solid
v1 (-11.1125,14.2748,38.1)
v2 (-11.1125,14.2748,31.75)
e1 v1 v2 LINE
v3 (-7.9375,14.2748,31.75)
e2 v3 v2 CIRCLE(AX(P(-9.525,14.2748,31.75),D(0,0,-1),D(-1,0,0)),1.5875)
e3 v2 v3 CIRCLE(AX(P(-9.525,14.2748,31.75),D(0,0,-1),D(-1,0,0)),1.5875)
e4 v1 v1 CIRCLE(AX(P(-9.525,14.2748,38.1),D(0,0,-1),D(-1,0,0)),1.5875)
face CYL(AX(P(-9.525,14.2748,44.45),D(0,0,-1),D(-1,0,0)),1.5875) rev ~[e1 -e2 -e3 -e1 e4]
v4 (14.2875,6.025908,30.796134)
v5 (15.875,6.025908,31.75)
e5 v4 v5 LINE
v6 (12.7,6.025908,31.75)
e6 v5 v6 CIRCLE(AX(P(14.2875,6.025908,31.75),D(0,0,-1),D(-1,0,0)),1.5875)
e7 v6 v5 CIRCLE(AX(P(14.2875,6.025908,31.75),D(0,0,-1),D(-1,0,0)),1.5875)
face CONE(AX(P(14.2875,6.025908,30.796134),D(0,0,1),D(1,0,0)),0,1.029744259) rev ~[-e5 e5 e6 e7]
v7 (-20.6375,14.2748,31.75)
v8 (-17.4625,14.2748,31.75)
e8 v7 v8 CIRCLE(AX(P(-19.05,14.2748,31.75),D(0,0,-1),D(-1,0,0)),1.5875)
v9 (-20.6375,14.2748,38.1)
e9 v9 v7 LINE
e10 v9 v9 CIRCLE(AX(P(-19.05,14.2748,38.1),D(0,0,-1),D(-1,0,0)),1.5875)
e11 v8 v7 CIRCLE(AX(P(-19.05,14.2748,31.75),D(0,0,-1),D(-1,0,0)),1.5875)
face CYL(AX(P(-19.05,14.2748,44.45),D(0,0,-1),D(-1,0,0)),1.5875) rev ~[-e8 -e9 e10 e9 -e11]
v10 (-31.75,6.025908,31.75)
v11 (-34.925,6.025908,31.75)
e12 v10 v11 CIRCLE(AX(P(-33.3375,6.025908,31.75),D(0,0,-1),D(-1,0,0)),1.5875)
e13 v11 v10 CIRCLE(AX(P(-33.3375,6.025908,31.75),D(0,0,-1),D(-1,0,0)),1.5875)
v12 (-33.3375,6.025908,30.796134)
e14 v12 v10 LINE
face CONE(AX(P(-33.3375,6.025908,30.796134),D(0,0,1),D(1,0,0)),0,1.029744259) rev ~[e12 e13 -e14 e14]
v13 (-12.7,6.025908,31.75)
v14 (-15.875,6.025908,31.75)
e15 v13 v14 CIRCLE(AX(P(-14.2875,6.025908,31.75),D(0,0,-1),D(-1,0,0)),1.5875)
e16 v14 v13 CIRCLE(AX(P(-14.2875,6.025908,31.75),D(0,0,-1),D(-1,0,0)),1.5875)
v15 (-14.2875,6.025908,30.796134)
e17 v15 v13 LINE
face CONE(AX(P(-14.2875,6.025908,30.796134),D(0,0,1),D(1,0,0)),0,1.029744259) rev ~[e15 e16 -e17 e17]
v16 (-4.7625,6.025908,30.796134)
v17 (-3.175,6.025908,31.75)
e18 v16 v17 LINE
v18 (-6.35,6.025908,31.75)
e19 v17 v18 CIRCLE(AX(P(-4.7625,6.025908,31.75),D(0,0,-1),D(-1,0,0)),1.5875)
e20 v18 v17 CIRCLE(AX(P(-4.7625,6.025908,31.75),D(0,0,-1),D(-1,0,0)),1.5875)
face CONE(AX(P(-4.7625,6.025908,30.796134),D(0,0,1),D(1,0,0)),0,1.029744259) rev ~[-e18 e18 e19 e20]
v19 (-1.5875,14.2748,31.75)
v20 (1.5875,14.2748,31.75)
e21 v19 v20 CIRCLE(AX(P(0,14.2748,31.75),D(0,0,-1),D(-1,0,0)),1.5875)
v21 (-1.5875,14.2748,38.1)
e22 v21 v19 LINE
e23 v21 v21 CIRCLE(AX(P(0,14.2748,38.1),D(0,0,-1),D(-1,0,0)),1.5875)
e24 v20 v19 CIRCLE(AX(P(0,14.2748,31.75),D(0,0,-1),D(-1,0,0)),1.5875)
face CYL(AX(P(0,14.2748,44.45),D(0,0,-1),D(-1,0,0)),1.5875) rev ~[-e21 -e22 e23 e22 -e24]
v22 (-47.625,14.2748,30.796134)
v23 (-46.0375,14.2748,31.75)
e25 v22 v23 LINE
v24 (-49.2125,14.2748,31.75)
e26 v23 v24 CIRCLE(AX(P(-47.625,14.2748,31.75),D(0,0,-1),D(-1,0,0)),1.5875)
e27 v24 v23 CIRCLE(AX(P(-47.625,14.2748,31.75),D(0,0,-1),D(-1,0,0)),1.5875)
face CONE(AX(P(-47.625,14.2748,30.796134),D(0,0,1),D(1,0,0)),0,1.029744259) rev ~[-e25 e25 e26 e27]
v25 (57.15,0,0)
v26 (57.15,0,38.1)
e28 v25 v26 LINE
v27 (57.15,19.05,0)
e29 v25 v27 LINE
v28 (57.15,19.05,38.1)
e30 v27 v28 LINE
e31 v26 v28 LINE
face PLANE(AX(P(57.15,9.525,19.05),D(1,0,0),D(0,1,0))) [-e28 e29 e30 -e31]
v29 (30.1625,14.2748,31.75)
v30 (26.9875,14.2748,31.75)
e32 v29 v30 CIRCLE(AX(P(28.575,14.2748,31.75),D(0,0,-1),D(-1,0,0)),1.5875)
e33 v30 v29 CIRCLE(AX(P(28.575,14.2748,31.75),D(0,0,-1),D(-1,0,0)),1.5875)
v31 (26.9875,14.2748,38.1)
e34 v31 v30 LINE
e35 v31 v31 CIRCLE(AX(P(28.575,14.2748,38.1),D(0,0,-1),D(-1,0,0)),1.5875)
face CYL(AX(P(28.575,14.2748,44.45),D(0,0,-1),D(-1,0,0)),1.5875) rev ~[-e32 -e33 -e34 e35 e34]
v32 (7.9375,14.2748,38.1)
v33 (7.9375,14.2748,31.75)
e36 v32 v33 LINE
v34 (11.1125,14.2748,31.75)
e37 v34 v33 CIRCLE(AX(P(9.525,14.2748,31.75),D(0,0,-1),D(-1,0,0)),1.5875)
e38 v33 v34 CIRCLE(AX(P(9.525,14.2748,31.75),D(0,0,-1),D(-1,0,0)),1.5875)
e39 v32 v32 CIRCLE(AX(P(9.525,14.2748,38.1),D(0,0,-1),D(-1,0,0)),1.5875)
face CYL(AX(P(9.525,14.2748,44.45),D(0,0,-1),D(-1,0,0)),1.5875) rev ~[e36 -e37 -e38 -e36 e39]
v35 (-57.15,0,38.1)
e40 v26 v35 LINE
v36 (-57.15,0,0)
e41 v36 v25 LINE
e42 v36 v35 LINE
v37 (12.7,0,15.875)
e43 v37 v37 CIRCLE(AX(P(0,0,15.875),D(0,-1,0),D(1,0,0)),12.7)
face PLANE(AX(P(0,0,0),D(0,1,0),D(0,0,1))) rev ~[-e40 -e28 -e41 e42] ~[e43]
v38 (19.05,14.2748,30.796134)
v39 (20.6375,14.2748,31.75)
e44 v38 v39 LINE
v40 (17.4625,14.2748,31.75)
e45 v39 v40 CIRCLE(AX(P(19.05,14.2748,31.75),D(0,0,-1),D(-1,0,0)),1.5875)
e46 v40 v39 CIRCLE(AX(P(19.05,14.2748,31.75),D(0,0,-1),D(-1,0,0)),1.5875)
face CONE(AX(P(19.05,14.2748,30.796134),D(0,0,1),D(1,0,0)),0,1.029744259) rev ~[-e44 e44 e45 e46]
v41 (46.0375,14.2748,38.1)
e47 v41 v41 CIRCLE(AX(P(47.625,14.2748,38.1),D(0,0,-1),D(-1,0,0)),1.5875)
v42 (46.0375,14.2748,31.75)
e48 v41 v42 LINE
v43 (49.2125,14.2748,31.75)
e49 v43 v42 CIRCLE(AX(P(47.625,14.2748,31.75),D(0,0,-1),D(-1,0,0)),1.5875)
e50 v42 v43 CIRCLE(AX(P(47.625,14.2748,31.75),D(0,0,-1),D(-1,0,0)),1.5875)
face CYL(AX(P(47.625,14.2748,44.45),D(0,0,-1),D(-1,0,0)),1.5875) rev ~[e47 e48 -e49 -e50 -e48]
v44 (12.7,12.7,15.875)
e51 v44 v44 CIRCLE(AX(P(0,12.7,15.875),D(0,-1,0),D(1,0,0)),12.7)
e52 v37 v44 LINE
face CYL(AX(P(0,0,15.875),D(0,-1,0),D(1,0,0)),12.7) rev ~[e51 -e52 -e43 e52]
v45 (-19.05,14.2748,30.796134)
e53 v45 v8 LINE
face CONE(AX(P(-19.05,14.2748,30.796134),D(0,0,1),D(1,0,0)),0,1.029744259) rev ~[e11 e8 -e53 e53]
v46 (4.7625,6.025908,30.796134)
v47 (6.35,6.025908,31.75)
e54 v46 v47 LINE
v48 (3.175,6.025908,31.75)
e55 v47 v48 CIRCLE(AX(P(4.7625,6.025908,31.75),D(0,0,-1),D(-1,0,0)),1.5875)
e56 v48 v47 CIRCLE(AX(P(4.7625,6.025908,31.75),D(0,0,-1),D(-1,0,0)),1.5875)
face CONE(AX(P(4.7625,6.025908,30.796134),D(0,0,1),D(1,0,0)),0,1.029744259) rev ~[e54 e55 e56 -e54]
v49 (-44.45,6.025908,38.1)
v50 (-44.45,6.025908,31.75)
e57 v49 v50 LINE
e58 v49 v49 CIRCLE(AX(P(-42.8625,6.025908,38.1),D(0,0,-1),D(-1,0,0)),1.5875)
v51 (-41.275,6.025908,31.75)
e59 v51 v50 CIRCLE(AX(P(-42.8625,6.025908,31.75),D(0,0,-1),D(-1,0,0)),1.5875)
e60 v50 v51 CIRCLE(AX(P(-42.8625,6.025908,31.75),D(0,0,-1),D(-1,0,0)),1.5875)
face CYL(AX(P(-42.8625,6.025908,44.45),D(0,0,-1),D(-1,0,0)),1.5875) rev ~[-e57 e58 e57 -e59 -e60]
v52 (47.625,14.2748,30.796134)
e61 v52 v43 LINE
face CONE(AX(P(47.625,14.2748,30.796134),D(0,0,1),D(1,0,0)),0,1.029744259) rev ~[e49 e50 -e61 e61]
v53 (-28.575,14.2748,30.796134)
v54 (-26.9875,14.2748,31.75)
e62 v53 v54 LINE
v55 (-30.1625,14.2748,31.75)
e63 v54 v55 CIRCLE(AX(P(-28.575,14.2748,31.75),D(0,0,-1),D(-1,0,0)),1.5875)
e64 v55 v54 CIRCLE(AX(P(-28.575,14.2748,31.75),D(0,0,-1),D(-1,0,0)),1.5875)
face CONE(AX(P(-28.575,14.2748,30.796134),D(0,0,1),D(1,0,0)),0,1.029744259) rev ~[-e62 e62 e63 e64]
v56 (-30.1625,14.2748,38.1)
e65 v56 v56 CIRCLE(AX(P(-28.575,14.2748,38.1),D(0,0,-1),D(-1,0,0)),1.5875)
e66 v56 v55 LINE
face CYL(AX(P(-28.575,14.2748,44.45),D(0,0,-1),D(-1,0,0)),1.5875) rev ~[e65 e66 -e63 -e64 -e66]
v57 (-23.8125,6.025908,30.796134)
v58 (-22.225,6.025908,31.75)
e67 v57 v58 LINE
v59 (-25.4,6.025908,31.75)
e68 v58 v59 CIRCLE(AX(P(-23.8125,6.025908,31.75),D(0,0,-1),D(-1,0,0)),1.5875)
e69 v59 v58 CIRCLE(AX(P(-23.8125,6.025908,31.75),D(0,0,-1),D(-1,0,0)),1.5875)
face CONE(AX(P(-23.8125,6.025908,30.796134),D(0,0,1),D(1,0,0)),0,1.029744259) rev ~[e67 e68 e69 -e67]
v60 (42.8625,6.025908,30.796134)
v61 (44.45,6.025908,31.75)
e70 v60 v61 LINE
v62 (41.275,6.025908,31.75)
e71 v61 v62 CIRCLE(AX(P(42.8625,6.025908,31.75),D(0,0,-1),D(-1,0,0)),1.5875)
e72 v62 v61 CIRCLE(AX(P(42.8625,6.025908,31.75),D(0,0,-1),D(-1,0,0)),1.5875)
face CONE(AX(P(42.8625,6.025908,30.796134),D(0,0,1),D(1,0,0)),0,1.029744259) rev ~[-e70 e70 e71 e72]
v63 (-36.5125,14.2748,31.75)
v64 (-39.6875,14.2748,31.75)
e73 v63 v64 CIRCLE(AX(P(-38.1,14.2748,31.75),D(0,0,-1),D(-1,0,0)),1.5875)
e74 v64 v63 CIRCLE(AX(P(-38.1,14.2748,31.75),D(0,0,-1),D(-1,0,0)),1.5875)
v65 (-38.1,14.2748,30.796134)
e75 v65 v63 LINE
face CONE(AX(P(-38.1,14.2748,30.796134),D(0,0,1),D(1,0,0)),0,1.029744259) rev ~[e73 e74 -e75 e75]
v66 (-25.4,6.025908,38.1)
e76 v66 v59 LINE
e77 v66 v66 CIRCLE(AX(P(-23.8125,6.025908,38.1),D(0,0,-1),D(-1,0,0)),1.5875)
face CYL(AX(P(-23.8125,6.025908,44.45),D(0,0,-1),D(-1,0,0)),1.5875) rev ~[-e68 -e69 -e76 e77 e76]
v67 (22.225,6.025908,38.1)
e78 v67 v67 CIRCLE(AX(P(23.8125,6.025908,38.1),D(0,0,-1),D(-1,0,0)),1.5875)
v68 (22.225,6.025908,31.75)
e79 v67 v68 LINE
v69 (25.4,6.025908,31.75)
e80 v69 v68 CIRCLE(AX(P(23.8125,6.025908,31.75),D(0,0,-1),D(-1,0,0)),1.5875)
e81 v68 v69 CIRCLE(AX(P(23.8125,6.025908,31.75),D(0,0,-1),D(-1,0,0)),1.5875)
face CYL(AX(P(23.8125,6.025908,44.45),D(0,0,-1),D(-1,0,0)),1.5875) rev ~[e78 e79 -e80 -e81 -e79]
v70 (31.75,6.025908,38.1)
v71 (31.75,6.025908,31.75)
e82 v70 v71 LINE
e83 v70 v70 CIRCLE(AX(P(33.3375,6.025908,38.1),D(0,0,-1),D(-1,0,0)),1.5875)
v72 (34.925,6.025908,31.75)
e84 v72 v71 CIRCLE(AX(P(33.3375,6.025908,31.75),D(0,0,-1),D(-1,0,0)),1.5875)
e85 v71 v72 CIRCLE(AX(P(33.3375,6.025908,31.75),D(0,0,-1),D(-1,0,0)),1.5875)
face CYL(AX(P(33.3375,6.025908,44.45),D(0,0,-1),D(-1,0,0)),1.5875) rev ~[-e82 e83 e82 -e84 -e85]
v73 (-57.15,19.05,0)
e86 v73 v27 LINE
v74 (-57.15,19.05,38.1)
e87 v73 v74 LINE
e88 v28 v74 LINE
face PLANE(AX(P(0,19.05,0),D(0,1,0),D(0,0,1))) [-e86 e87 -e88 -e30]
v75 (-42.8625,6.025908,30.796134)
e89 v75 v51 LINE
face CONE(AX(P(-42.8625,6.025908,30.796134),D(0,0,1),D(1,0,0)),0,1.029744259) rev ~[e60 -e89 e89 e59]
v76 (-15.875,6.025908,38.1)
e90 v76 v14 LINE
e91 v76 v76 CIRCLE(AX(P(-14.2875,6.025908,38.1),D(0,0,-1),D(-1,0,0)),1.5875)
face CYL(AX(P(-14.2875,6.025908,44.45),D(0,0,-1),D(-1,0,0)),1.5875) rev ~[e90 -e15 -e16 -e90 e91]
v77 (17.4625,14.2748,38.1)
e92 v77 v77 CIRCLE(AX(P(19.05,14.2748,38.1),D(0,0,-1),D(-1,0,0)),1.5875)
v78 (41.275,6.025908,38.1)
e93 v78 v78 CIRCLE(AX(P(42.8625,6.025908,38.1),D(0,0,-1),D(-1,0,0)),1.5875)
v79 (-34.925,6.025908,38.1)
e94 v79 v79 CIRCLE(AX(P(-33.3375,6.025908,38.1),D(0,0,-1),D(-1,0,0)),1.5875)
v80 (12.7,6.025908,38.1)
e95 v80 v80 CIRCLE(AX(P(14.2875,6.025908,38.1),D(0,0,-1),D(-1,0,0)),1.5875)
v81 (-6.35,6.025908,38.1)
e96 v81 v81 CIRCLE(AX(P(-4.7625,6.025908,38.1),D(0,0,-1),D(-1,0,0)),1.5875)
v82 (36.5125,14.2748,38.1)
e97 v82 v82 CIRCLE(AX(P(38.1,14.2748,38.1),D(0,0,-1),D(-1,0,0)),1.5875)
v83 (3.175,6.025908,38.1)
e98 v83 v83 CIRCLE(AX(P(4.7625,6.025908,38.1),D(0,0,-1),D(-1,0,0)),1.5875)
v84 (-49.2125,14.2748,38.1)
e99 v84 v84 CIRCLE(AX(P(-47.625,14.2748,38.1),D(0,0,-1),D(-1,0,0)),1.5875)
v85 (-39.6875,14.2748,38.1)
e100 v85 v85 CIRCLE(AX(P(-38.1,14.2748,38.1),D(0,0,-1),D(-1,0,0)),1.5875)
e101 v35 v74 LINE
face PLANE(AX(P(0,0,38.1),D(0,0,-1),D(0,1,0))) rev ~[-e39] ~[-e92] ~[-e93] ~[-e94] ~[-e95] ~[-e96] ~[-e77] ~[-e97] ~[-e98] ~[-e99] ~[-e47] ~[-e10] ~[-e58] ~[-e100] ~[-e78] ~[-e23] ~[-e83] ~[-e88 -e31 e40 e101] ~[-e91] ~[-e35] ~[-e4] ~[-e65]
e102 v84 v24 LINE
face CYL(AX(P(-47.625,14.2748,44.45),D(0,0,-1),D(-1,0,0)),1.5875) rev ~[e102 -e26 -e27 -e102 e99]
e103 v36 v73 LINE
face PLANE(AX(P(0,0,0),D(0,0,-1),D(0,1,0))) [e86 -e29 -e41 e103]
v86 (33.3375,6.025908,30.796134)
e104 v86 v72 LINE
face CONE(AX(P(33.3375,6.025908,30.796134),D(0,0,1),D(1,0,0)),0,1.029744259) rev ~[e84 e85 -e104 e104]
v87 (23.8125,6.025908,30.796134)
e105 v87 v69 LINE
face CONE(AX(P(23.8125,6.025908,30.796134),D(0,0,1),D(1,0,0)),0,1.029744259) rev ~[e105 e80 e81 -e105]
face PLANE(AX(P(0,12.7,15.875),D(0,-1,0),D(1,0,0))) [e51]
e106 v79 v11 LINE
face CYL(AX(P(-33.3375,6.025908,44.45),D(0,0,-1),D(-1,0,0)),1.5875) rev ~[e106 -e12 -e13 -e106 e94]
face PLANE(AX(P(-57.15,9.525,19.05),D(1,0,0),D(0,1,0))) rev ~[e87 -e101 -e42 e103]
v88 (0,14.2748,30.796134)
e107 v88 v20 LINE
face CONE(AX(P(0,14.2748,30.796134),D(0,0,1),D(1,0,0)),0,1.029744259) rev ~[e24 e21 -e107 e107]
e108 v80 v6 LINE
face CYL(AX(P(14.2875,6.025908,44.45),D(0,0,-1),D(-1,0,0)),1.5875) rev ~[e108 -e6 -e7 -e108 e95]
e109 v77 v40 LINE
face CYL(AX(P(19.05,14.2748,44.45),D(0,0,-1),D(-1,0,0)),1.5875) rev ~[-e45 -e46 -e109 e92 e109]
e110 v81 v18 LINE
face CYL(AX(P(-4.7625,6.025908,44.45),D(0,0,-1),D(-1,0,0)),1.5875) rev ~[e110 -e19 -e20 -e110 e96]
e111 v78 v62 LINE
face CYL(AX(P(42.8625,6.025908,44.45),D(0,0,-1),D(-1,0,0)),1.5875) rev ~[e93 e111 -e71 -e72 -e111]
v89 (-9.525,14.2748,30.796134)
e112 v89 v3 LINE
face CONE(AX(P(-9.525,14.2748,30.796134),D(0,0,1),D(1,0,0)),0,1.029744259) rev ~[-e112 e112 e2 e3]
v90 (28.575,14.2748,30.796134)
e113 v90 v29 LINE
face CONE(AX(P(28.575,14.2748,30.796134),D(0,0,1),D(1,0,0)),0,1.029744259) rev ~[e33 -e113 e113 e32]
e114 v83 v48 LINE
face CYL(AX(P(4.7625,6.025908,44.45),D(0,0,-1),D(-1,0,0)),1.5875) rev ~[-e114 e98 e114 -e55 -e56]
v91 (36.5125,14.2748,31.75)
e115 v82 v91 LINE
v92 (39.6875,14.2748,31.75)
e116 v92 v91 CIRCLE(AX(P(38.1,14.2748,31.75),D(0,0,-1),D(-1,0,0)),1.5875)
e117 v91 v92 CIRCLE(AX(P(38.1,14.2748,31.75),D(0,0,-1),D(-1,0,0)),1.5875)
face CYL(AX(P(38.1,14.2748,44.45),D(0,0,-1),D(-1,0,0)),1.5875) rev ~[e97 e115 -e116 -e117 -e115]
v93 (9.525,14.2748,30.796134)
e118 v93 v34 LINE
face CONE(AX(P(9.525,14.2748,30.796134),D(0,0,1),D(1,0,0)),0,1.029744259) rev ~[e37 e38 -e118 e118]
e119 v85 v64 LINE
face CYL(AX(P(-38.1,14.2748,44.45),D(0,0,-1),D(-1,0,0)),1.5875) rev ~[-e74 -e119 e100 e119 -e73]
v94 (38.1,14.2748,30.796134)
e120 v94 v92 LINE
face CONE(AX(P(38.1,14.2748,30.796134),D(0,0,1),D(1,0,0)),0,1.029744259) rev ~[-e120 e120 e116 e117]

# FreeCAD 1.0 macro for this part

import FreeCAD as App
import Part
import Sketcher
Q = App.Units.Quantity


def add_polygon(sketch, points):
    """Adds a closed chain of lines whose ends are joined by coincident constraints."""
    first, n = sketch.GeometryCount, len(points)
    for a, b in zip(points, points[1:] + points[:1]):
        sketch.addGeometry(Part.LineSegment(App.Vector(*a, 0), App.Vector(*b, 0)), False)
    for i in range(n):
        sketch.addConstraint(Sketcher.Constraint("Coincident", first + i, 2, first + (i + 1) % n, 1))

doc = App.newDocument("Part")
body = doc.addObject("PartDesign::Body", "Body")

# Sketch on YZ plane
sketch1 = body.newObject("Sketcher::SketchObject", "Sketch")
sketch1.AttachmentSupport = (doc.getObject("YZ_Plane"), [""])
sketch1.MapMode = "FlatFace"
add_polygon(sketch1, [(0, 38), (0, 0), (19, 0), (19, 38)])  # lines 0-3
sketch1.addConstraint([
    Sketcher.Constraint("Vertical", 0),
    Sketcher.Constraint("Horizontal", 1),
    Sketcher.Constraint("Vertical", 2),
    Sketcher.Constraint("Horizontal", 3),
    Sketcher.Constraint("Coincident", 0, 2, -1, 1),
    Sketcher.Constraint("DistanceY", 0, 2, 0, 1, Q("1.5 in")),
    Sketcher.Constraint("DistanceX", 1, 1, 1, 2, Q("0.75 in")),
])
pad1 = body.newObject("PartDesign::Pad", "Pad")
pad1.Profile = sketch1
pad1.Length = Q("4.5 in")
pad1.Midplane = True

# Sketch on XZ plane
sketch2 = body.newObject("Sketcher::SketchObject", "Sketch001")
sketch2.AttachmentSupport = (doc.getObject("XZ_Plane"), [""])
sketch2.MapMode = "FlatFace"
sketch2.addGeometry(Part.Circle(App.Vector(0, 16, 0), App.Vector(0, 0, 1), 13), False)
sketch2.addConstraint([
    Sketcher.Constraint("PointOnObject", 0, 3, -2),
    Sketcher.Constraint("Diameter", 0, Q("1 in")),
    Sketcher.Constraint("DistanceY", -1, 1, 0, 3, Q("0.625 in")),
])
pocket1 = body.newObject("PartDesign::Pocket", "Pocket")
pocket1.Profile = sketch2
pocket1.Length = Q("0.5 in")

# Sketch on XY plane
sketch3 = body.newObject("Sketcher::SketchObject", "Sketch002")
sketch3.AttachmentSupport = (doc.getObject("XY_Plane"), [""])
sketch3.MapMode = "FlatFace"
sketch3.AttachmentOffset = App.Placement(App.Vector(0, 0, 1.5 * 25.4), App.Rotation())
sketch3.addGeometry([
    Part.Circle(App.Vector(0, 14.3, 0), App.Vector(0, 0, 1), 1.6),  # 0
    Part.Circle(App.Vector(-47.6, 14.3, 0), App.Vector(0, 0, 1), 1.6),  # 1
    Part.Circle(App.Vector(-14.3, 6, 0), App.Vector(0, 0, 1), 1.6),  # 2
    Part.Circle(App.Vector(-23.8, 6, 0), App.Vector(0, 0, 1), 1.6),  # 3
    Part.Circle(App.Vector(23.8, 6, 0), App.Vector(0, 0, 1), 1.6),  # 4
    Part.Circle(App.Vector(-33.3, 6, 0), App.Vector(0, 0, 1), 1.6),  # 5
    Part.Circle(App.Vector(28.6, 14.3, 0), App.Vector(0, 0, 1), 1.6),  # 6
    Part.Circle(App.Vector(4.8, 6, 0), App.Vector(0, 0, 1), 1.6),  # 7
    Part.Circle(App.Vector(-4.8, 6, 0), App.Vector(0, 0, 1), 1.6),  # 8
    Part.Circle(App.Vector(-19.1, 14.3, 0), App.Vector(0, 0, 1), 1.6),  # 9
    Part.Circle(App.Vector(14.3, 6, 0), App.Vector(0, 0, 1), 1.6),  # 10
    Part.Circle(App.Vector(9.5, 14.3, 0), App.Vector(0, 0, 1), 1.6),  # 11
    Part.Circle(App.Vector(19.1, 14.3, 0), App.Vector(0, 0, 1), 1.6),  # 12
    Part.Circle(App.Vector(42.9, 6, 0), App.Vector(0, 0, 1), 1.6),  # 13
    Part.Circle(App.Vector(33.3, 6, 0), App.Vector(0, 0, 1), 1.6),  # 14
    Part.Circle(App.Vector(47.6, 14.3, 0), App.Vector(0, 0, 1), 1.6),  # 15
    Part.Circle(App.Vector(-42.9, 6, 0), App.Vector(0, 0, 1), 1.6),  # 16
    Part.Circle(App.Vector(38.1, 14.3, 0), App.Vector(0, 0, 1), 1.6),  # 17
    Part.Circle(App.Vector(-28.6, 14.3, 0), App.Vector(0, 0, 1), 1.6),  # 18
    Part.Circle(App.Vector(-9.5, 14.3, 0), App.Vector(0, 0, 1), 1.6),  # 19
    Part.Circle(App.Vector(-38.1, 14.3, 0), App.Vector(0, 0, 1), 1.6),  # 20
], False)
sketch3.addConstraint([
    Sketcher.Constraint("Equal", 0, 1),
    Sketcher.Constraint("Equal", 1, 2),
    Sketcher.Constraint("Equal", 2, 3),
    Sketcher.Constraint("Equal", 3, 4),
    Sketcher.Constraint("Equal", 4, 5),
    Sketcher.Constraint("Equal", 5, 6),
    Sketcher.Constraint("Equal", 6, 7),
    Sketcher.Constraint("Equal", 7, 8),
    Sketcher.Constraint("Equal", 8, 9),
    Sketcher.Constraint("Equal", 9, 10),
    Sketcher.Constraint("Equal", 10, 11),
    Sketcher.Constraint("Equal", 11, 12),
    Sketcher.Constraint("Equal", 12, 13),
    Sketcher.Constraint("Equal", 13, 14),
    Sketcher.Constraint("Equal", 14, 15),
    Sketcher.Constraint("Equal", 15, 16),
    Sketcher.Constraint("Equal", 16, 17),
    Sketcher.Constraint("Equal", 17, 18),
    Sketcher.Constraint("Equal", 18, 19),
    Sketcher.Constraint("Equal", 19, 20),
    Sketcher.Constraint("Symmetric", 3, 3, 4, 3, -2),
    Sketcher.Constraint("Symmetric", 7, 3, 8, 3, -2),
    Sketcher.Constraint("Symmetric", 2, 3, 10, 3, -2),
    Sketcher.Constraint("Symmetric", 9, 3, 12, 3, -2),
    Sketcher.Constraint("Symmetric", 5, 3, 14, 3, -2),
    Sketcher.Constraint("Symmetric", 1, 3, 15, 3, -2),
    Sketcher.Constraint("Symmetric", 13, 3, 16, 3, -2),
    Sketcher.Constraint("Symmetric", 6, 3, 18, 3, -2),
    Sketcher.Constraint("Symmetric", 11, 3, 19, 3, -2),
    Sketcher.Constraint("Symmetric", 17, 3, 20, 3, -2),
    Sketcher.Constraint("PointOnObject", 0, 3, -2),
    Sketcher.Constraint("Horizontal", 0, 3, 1, 3),
    Sketcher.Constraint("Horizontal", 2, 3, 3, 3),
    Sketcher.Constraint("Horizontal", 4, 3, 5, 3),
    Sketcher.Constraint("Horizontal", 1, 3, 6, 3),
    Sketcher.Constraint("Horizontal", 5, 3, 7, 3),
    Sketcher.Constraint("Horizontal", 6, 3, 9, 3),
    Sketcher.Constraint("Horizontal", 9, 3, 11, 3),
    Sketcher.Constraint("Horizontal", 10, 3, 13, 3),
    Sketcher.Constraint("Horizontal", 15, 3, 17, 3),
    Sketcher.Constraint("Diameter", 0, Q("0.125 in")),
    Sketcher.Constraint("DistanceX", -1, 1, 17, 3, Q("1.5 in")),
    Sketcher.Constraint("DistanceX", 2, 3, 4, 3, Q("1.5 in")),
    Sketcher.Constraint("DistanceX", 9, 3, -1, 1, Q("0.75 in")),
    Sketcher.Constraint("DistanceX", 5, 3, 2, 3, Q("0.75 in")),
    Sketcher.Constraint("DistanceX", 2, 3, 7, 3, Q("0.75 in")),
    Sketcher.Constraint("DistanceX", 4, 3, 13, 3, Q("0.75 in")),
    Sketcher.Constraint("DistanceX", 6, 3, 15, 3, Q("0.75 in")),
    Sketcher.Constraint("DistanceY", -1, 1, 0, 3, Q("0.562 in")),
    Sketcher.Constraint("DistanceX", 1, 3, -1, 1, Q("1.875 in")),
    Sketcher.Constraint("DistanceX", 2, 3, -1, 1, Q("0.5625 in")),
    Sketcher.Constraint("DistanceX", -1, 1, 11, 3, Q("0.375 in")),
    Sketcher.Constraint("DistanceY", -1, 1, 2, 3, Q("6.025908 mm")),
])
doc.recompute()
hole = body.newObject("PartDesign::Hole", "Hole")
hole.Profile = sketch3
hole.ThreadType = "None"
hole.Diameter = Q("0.125 in")
hole.DepthType = "Dimension"
hole.Depth = Q("0.25 in")
hole.DrillPoint = "Angled"
hole.DrillPointAngle = 118

doc.recompute()
